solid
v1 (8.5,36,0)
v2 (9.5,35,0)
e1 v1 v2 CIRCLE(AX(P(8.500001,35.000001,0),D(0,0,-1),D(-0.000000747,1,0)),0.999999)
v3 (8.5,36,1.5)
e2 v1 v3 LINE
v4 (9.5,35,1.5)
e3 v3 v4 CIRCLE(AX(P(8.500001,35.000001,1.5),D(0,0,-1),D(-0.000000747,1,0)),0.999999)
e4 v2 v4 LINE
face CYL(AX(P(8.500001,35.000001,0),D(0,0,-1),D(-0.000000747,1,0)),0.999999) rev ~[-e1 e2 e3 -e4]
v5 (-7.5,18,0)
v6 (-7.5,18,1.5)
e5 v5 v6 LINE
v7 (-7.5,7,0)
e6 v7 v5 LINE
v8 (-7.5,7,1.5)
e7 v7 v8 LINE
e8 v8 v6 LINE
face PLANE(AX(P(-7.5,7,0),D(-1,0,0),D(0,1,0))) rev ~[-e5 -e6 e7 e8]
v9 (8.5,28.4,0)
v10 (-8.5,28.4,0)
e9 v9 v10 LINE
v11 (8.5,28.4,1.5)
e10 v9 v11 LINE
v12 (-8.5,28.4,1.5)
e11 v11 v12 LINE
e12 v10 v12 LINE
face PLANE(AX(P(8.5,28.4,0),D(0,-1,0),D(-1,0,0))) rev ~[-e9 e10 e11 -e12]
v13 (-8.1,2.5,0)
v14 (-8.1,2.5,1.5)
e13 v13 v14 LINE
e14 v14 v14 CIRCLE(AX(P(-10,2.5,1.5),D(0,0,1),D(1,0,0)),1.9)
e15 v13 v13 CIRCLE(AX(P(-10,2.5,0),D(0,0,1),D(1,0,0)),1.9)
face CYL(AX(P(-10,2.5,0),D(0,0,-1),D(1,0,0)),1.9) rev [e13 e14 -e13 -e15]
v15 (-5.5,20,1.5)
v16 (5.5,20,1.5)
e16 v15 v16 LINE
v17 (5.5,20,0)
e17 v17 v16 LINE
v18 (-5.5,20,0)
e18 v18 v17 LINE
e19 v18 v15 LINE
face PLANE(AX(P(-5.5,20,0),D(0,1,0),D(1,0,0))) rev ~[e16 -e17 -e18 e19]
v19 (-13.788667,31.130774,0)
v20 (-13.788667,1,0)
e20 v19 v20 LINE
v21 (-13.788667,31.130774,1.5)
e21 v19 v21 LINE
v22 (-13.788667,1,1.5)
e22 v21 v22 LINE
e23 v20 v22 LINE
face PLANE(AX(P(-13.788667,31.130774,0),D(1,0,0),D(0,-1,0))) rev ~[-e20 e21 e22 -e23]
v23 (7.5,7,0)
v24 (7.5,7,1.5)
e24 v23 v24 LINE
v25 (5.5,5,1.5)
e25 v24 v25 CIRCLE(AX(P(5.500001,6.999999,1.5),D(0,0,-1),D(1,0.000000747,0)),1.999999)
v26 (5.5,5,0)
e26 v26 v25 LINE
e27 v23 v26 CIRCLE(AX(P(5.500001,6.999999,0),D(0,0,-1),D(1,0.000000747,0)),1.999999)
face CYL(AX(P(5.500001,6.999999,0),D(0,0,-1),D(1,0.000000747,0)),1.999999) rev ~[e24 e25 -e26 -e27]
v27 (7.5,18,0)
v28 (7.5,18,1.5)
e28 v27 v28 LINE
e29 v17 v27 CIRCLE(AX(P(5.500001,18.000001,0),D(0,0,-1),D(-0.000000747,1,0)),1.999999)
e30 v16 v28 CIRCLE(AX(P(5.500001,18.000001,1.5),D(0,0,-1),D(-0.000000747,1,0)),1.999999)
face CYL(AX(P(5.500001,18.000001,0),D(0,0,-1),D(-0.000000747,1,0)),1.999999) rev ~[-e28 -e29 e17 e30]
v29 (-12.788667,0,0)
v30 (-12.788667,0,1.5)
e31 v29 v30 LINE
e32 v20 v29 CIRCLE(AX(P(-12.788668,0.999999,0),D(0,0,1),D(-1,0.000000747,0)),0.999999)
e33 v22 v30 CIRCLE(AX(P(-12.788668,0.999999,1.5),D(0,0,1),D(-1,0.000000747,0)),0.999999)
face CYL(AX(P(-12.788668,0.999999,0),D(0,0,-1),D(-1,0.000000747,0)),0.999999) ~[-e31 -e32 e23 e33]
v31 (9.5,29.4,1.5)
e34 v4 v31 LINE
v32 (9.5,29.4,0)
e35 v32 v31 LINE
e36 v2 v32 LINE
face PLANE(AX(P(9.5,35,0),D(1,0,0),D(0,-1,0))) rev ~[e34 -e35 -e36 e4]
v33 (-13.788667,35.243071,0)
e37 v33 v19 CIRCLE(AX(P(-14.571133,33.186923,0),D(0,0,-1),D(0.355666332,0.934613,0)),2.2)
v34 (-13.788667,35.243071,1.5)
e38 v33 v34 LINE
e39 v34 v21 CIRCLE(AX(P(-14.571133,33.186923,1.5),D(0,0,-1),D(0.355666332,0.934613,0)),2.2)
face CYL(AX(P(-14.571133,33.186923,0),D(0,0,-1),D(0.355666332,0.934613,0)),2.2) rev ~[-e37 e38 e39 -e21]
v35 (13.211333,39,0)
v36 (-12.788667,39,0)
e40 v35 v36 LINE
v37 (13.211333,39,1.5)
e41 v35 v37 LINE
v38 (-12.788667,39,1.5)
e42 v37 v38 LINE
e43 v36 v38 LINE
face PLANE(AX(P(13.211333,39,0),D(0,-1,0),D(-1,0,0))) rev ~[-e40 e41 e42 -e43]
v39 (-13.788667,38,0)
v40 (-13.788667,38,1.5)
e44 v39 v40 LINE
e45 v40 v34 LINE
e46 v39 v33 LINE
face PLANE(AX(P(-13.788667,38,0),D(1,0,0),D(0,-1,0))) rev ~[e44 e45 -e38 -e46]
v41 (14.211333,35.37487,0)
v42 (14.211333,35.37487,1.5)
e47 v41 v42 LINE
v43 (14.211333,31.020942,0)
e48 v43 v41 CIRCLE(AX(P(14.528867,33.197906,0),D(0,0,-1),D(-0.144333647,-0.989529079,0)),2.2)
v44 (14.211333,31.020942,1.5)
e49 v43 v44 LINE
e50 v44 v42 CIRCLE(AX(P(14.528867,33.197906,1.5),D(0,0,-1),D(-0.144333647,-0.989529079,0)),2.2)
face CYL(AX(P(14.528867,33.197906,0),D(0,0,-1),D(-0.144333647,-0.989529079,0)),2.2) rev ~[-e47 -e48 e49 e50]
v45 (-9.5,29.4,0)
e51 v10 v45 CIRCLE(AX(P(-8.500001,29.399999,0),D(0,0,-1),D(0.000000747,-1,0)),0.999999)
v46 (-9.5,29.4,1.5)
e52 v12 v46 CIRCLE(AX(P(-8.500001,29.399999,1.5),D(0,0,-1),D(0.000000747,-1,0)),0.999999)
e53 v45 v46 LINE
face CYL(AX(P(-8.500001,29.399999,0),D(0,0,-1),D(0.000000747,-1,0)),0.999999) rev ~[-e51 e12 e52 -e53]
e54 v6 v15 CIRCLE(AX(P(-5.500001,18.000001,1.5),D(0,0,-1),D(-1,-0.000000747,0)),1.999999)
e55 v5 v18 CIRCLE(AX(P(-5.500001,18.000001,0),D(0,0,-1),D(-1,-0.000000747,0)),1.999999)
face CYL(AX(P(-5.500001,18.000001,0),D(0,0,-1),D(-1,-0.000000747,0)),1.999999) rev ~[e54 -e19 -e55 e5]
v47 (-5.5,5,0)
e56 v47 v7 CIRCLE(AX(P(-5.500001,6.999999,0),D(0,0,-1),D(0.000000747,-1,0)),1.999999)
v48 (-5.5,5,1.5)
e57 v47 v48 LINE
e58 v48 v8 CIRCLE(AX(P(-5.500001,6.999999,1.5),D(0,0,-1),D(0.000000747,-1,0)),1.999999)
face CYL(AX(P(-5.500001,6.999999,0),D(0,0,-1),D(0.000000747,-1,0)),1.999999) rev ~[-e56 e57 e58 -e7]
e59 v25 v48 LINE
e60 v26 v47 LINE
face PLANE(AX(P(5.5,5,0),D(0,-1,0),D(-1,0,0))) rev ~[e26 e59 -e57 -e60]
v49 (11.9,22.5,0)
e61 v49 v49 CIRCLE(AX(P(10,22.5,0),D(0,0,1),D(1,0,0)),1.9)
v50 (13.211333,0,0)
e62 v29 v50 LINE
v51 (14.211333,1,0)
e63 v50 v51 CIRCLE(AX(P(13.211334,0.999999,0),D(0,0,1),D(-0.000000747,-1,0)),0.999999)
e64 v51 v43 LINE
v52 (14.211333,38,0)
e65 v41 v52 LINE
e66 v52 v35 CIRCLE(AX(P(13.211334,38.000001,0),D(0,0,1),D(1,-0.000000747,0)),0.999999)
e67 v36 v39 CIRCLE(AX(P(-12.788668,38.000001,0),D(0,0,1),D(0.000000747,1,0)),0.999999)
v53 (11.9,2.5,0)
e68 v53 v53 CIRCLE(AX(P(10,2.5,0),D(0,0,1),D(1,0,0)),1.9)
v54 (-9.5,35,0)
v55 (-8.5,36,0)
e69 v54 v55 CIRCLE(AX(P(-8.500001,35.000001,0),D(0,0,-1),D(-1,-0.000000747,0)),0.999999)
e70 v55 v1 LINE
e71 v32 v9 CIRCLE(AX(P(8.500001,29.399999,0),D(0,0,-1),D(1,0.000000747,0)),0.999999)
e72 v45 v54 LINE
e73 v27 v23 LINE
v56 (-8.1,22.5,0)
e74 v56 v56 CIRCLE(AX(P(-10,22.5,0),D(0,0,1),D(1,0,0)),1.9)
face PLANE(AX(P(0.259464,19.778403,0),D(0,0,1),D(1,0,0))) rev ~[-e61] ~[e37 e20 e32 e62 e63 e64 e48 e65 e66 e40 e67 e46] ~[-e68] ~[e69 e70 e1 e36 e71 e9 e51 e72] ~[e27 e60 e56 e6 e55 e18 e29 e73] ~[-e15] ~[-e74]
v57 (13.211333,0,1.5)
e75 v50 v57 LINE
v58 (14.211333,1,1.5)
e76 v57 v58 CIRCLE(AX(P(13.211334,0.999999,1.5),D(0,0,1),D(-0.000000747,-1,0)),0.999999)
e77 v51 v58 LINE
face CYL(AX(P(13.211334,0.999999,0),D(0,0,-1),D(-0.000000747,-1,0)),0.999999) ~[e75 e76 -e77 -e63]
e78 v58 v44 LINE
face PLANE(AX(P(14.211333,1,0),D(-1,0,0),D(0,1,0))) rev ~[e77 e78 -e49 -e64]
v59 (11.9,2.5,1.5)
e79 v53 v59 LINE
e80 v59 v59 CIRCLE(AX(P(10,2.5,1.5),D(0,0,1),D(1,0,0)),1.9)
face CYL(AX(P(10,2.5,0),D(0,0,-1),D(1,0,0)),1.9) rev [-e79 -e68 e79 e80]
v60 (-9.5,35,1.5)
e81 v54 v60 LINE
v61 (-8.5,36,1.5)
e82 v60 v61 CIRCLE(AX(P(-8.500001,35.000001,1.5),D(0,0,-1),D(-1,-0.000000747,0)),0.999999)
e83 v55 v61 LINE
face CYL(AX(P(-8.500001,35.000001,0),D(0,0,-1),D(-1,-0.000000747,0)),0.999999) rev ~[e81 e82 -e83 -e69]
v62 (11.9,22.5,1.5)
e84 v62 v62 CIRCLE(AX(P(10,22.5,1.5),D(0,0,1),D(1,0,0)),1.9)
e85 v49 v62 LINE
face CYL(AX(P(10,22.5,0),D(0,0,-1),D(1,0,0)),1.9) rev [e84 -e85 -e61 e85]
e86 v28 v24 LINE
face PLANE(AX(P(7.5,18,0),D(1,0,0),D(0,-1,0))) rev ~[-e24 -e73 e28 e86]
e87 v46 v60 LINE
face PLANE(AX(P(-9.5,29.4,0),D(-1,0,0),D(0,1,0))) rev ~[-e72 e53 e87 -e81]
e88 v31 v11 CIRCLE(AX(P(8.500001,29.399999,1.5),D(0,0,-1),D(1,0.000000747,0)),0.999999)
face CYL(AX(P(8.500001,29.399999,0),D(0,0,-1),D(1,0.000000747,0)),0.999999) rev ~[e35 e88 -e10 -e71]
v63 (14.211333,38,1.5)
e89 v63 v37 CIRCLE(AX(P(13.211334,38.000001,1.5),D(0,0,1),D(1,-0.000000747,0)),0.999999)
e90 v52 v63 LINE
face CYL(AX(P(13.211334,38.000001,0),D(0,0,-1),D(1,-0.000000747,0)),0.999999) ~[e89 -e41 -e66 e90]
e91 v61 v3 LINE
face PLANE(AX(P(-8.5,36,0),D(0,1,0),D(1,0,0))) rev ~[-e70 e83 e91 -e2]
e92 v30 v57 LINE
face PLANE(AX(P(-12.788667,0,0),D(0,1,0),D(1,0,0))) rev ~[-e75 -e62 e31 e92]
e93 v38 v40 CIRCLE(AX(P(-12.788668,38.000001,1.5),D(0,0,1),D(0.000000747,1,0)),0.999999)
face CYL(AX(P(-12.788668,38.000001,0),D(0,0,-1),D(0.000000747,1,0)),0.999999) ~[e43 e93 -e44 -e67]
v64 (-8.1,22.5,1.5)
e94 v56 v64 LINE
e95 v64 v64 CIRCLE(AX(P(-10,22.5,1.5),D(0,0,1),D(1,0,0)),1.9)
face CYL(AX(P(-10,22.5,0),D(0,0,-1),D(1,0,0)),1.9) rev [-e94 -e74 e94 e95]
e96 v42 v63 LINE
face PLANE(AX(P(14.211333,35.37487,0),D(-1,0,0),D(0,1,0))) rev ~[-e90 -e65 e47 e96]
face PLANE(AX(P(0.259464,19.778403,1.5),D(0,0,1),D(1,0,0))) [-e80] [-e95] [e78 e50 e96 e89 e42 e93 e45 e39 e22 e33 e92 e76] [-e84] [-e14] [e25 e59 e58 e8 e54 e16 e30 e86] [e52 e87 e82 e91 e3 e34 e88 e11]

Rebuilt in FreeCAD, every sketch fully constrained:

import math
import FreeCAD as App
import Part
import Sketcher

doc = App.newDocument("Part")
body = doc.addObject("PartDesign::Body", "Body")

sketch1 = body.newObject("Sketcher::SketchObject", "Sketch")
sketch1.AttachmentSupport = (doc.getObject("XY_Plane"), [""])
sketch1.MapMode = "FlatFace"
sketch1.addGeometry([
    Part.ArcOfCircle(Part.Circle(App.Vector(-12.8, 1, 0), App.Vector(0, 0, 1), 1), math.radians(180), math.radians(270)),
    Part.LineSegment(App.Vector(-12.8, 0, 0), App.Vector(13.2, 0, 0)),
    Part.ArcOfCircle(Part.Circle(App.Vector(13.2, 1, 0), App.Vector(0, 0, 1), 1), math.radians(-90), math.radians(0)),
    Part.LineSegment(App.Vector(14.2, 1, 0), App.Vector(14.2, 31, 0)),
    Part.ArcOfCircle(Part.Circle(App.Vector(14.5, 33.2, 0), App.Vector(0, 0, 1), 2.2), math.radians(98), math.radians(262)),
    Part.LineSegment(App.Vector(14.2, 35.4, 0), App.Vector(14.2, 38, 0)),
    Part.ArcOfCircle(Part.Circle(App.Vector(13.2, 38, 0), App.Vector(0, 0, 1), 1), math.radians(0), math.radians(90)),
    Part.LineSegment(App.Vector(13.2, 39, 0), App.Vector(-12.8, 39, 0)),
    Part.ArcOfCircle(Part.Circle(App.Vector(-12.8, 38, 0), App.Vector(0, 0, 1), 1), math.radians(90), math.radians(180)),
    Part.LineSegment(App.Vector(-13.8, 38, 0), App.Vector(-13.8, 35.2, 0)),
    Part.ArcOfCircle(Part.Circle(App.Vector(-14.6, 33.2, 0), App.Vector(0, 0, 1), 2.2), math.radians(-69), math.radians(69)),
    Part.LineSegment(App.Vector(-13.8, 31.1, 0), App.Vector(-13.8, 1, 0)),
    Part.Circle(App.Vector(-10, 2.5, 0), App.Vector(0, 0, 1), 1.9),
    Part.Circle(App.Vector(10, 2.5, 0), App.Vector(0, 0, 1), 1.9),
    Part.LineSegment(App.Vector(7.5, 18, 0), App.Vector(7.5, 7, 0)),
    Part.ArcOfCircle(Part.Circle(App.Vector(5.5, 7, 0), App.Vector(0, 0, 1), 2), math.radians(-90), math.radians(0)),
    Part.LineSegment(App.Vector(5.5, 5, 0), App.Vector(-5.5, 5, 0)),
    Part.ArcOfCircle(Part.Circle(App.Vector(-5.5, 7, 0), App.Vector(0, 0, 1), 2), math.radians(180), math.radians(270)),
    Part.LineSegment(App.Vector(-7.5, 7, 0), App.Vector(-7.5, 18, 0)),
    Part.ArcOfCircle(Part.Circle(App.Vector(-5.5, 18, 0), App.Vector(0, 0, 1), 2), math.radians(90), math.radians(180)),
    Part.LineSegment(App.Vector(-5.5, 20, 0), App.Vector(5.5, 20, 0)),
    Part.ArcOfCircle(Part.Circle(App.Vector(5.5, 18, 0), App.Vector(0, 0, 1), 2), math.radians(0), math.radians(90)),
    Part.Circle(App.Vector(-10, 22.5, 0), App.Vector(0, 0, 1), 1.9),
    Part.LineSegment(App.Vector(9.5, 35, 0), App.Vector(9.5, 29.4, 0)),
    Part.ArcOfCircle(Part.Circle(App.Vector(8.5, 29.4, 0), App.Vector(0, 0, 1), 1), math.radians(-90), math.radians(0)),
    Part.LineSegment(App.Vector(8.5, 28.4, 0), App.Vector(-8.5, 28.4, 0)),
    Part.ArcOfCircle(Part.Circle(App.Vector(-8.5, 29.4, 0), App.Vector(0, 0, 1), 1), math.radians(180), math.radians(270)),
    Part.LineSegment(App.Vector(-9.5, 29.4, 0), App.Vector(-9.5, 35, 0)),
    Part.ArcOfCircle(Part.Circle(App.Vector(-8.5, 35, 0), App.Vector(0, 0, 1), 1), math.radians(90), math.radians(180)),
    Part.LineSegment(App.Vector(-8.5, 36, 0), App.Vector(8.5, 36, 0)),
    Part.ArcOfCircle(Part.Circle(App.Vector(8.5, 35, 0), App.Vector(0, 0, 1), 1), math.radians(0), math.radians(90)),
    Part.Circle(App.Vector(10, 22.5, 0), App.Vector(0, 0, 1), 1.9),
], False)
sketch1.addConstraint([
    Sketcher.Constraint("Tangent", 0, 2, 1, 1),
    Sketcher.Constraint("Tangent", 1, 2, 2, 1),
    Sketcher.Constraint("Tangent", 2, 2, 3, 1),
    Sketcher.Constraint("Coincident", 3, 2, 4, 2),
    Sketcher.Constraint("Coincident", 4, 1, 5, 1),
    Sketcher.Constraint("Tangent", 5, 2, 6, 1),
    Sketcher.Constraint("Tangent", 6, 2, 7, 1),
    Sketcher.Constraint("Tangent", 7, 2, 8, 1),
    Sketcher.Constraint("Tangent", 8, 2, 9, 1),
    Sketcher.Constraint("Coincident", 9, 2, 10, 2),
    Sketcher.Constraint("Coincident", 10, 1, 11, 1),
    Sketcher.Constraint("Tangent", 11, 2, 0, 1),
    Sketcher.Constraint("Tangent", 14, 2, 15, 2),
    Sketcher.Constraint("Tangent", 15, 1, 16, 1),
    Sketcher.Constraint("Tangent", 16, 2, 17, 2),
    Sketcher.Constraint("Tangent", 17, 1, 18, 1),
    Sketcher.Constraint("Tangent", 18, 2, 19, 2),
    Sketcher.Constraint("Tangent", 19, 1, 20, 1),
    Sketcher.Constraint("Tangent", 20, 2, 21, 2),
    Sketcher.Constraint("Tangent", 21, 1, 14, 1),
    Sketcher.Constraint("Tangent", 23, 2, 24, 2),
    Sketcher.Constraint("Tangent", 24, 1, 25, 1),
    Sketcher.Constraint("Tangent", 25, 2, 26, 2),
    Sketcher.Constraint("Tangent", 26, 1, 27, 1),
    Sketcher.Constraint("Tangent", 27, 2, 28, 2),
    Sketcher.Constraint("Tangent", 28, 1, 29, 1),
    Sketcher.Constraint("Tangent", 29, 2, 30, 2),
    Sketcher.Constraint("Tangent", 30, 1, 23, 1),
    Sketcher.Constraint("Horizontal", 1),
    Sketcher.Constraint("Vertical", 3),
    Sketcher.Constraint("Vertical", 5),
    Sketcher.Constraint("Horizontal", 7),
    Sketcher.Constraint("Vertical", 9),
    Sketcher.Constraint("Vertical", 11),
    Sketcher.Constraint("Vertical", 14),
    Sketcher.Constraint("Horizontal", 16),
    Sketcher.Constraint("Vertical", 18),
    Sketcher.Constraint("Horizontal", 20),
    Sketcher.Constraint("Vertical", 23),
    Sketcher.Constraint("Horizontal", 25),
    Sketcher.Constraint("Vertical", 27),
    Sketcher.Constraint("Horizontal", 29),
    Sketcher.Constraint("Equal", 0, 2),
    Sketcher.Constraint("Equal", 2, 6),
    Sketcher.Constraint("Equal", 6, 8),
    Sketcher.Constraint("Equal", 4, 10),
    Sketcher.Constraint("Equal", 12, 13),
    Sketcher.Constraint("Equal", 15, 17),
    Sketcher.Constraint("Equal", 17, 19),
    Sketcher.Constraint("Equal", 19, 21),
    Sketcher.Constraint("Equal", 13, 22),
    Sketcher.Constraint("Equal", 8, 24),
    Sketcher.Constraint("Equal", 24, 26),
    Sketcher.Constraint("Equal", 26, 28),
    Sketcher.Constraint("Equal", 28, 30),
    Sketcher.Constraint("Equal", 22, 31),
    Sketcher.Constraint("Symmetric", 12, 3, 13, 3, -2),
    Sketcher.Constraint("Symmetric", 22, 3, 31, 3, -2),
    Sketcher.Constraint("PointOnObject", 0, 2, -1),
    Sketcher.Constraint("Vertical", 2, 3, 6, 3),
    Sketcher.Constraint("Vertical", 0, 3, 8, 3),
    Sketcher.Constraint("Vertical", 12, 3, 22, 3),
    Sketcher.Constraint("Equal", 20, 14),
    Sketcher.Constraint("Radius", 0, 0.999999),
    Sketcher.Constraint("Radius", 15, 1.999999),
    Sketcher.Constraint("Diameter", 12, 3.8),
    Sketcher.Constraint("Radius", 4, 2.2),
    Sketcher.Constraint("DistanceX", 1, 1, 1, 2, 26.0),
    Sketcher.Constraint("DistanceX", 16, 2, 16, 1, 11.0),
    Sketcher.Constraint("DistanceX", 25, 2, 25, 1, 17.0),
    Sketcher.Constraint("DistanceY", 23, 2, 23, 1, 5.6),
    Sketcher.Constraint("DistanceY", -1, 1, 6, 3, 38.000001),
    Sketcher.Constraint("DistanceX", 12, 3, -1, 1, 10.0),
    Sketcher.Constraint("DistanceY", -1, 1, 15, 3, 6.999999),
    Sketcher.Constraint("DistanceY", -1, 1, 28, 3, 35.000001),
    Sketcher.Constraint("DistanceX", 21, 3, 24, 3, 2.999999),
    Sketcher.Constraint("DistanceY", -1, 1, 12, 3, 2.5),
    Sketcher.Constraint("DistanceX", -1, 1, 15, 3, 5.500001),
    Sketcher.Constraint("DistanceY", -1, 1, 22, 3, 22.5),
    Sketcher.Constraint("DistanceX", 10, 3, 4, 3, 29.1),
    Sketcher.Constraint("DistanceY", 5, 1, 5, 2, 2.62513),
    Sketcher.Constraint("DistanceY", 9, 2, 9, 1, 2.756929),
    Sketcher.Constraint("DistanceY", 3, 1, 3, 2, 30.020942),
    Sketcher.Constraint("DistanceX", 0, 3, 15, 3, 18.288669),
])
pad1 = body.newObject("PartDesign::Pad", "Pad")
pad1.Profile = sketch1
pad1.Length = 1.5

doc.recompute()
